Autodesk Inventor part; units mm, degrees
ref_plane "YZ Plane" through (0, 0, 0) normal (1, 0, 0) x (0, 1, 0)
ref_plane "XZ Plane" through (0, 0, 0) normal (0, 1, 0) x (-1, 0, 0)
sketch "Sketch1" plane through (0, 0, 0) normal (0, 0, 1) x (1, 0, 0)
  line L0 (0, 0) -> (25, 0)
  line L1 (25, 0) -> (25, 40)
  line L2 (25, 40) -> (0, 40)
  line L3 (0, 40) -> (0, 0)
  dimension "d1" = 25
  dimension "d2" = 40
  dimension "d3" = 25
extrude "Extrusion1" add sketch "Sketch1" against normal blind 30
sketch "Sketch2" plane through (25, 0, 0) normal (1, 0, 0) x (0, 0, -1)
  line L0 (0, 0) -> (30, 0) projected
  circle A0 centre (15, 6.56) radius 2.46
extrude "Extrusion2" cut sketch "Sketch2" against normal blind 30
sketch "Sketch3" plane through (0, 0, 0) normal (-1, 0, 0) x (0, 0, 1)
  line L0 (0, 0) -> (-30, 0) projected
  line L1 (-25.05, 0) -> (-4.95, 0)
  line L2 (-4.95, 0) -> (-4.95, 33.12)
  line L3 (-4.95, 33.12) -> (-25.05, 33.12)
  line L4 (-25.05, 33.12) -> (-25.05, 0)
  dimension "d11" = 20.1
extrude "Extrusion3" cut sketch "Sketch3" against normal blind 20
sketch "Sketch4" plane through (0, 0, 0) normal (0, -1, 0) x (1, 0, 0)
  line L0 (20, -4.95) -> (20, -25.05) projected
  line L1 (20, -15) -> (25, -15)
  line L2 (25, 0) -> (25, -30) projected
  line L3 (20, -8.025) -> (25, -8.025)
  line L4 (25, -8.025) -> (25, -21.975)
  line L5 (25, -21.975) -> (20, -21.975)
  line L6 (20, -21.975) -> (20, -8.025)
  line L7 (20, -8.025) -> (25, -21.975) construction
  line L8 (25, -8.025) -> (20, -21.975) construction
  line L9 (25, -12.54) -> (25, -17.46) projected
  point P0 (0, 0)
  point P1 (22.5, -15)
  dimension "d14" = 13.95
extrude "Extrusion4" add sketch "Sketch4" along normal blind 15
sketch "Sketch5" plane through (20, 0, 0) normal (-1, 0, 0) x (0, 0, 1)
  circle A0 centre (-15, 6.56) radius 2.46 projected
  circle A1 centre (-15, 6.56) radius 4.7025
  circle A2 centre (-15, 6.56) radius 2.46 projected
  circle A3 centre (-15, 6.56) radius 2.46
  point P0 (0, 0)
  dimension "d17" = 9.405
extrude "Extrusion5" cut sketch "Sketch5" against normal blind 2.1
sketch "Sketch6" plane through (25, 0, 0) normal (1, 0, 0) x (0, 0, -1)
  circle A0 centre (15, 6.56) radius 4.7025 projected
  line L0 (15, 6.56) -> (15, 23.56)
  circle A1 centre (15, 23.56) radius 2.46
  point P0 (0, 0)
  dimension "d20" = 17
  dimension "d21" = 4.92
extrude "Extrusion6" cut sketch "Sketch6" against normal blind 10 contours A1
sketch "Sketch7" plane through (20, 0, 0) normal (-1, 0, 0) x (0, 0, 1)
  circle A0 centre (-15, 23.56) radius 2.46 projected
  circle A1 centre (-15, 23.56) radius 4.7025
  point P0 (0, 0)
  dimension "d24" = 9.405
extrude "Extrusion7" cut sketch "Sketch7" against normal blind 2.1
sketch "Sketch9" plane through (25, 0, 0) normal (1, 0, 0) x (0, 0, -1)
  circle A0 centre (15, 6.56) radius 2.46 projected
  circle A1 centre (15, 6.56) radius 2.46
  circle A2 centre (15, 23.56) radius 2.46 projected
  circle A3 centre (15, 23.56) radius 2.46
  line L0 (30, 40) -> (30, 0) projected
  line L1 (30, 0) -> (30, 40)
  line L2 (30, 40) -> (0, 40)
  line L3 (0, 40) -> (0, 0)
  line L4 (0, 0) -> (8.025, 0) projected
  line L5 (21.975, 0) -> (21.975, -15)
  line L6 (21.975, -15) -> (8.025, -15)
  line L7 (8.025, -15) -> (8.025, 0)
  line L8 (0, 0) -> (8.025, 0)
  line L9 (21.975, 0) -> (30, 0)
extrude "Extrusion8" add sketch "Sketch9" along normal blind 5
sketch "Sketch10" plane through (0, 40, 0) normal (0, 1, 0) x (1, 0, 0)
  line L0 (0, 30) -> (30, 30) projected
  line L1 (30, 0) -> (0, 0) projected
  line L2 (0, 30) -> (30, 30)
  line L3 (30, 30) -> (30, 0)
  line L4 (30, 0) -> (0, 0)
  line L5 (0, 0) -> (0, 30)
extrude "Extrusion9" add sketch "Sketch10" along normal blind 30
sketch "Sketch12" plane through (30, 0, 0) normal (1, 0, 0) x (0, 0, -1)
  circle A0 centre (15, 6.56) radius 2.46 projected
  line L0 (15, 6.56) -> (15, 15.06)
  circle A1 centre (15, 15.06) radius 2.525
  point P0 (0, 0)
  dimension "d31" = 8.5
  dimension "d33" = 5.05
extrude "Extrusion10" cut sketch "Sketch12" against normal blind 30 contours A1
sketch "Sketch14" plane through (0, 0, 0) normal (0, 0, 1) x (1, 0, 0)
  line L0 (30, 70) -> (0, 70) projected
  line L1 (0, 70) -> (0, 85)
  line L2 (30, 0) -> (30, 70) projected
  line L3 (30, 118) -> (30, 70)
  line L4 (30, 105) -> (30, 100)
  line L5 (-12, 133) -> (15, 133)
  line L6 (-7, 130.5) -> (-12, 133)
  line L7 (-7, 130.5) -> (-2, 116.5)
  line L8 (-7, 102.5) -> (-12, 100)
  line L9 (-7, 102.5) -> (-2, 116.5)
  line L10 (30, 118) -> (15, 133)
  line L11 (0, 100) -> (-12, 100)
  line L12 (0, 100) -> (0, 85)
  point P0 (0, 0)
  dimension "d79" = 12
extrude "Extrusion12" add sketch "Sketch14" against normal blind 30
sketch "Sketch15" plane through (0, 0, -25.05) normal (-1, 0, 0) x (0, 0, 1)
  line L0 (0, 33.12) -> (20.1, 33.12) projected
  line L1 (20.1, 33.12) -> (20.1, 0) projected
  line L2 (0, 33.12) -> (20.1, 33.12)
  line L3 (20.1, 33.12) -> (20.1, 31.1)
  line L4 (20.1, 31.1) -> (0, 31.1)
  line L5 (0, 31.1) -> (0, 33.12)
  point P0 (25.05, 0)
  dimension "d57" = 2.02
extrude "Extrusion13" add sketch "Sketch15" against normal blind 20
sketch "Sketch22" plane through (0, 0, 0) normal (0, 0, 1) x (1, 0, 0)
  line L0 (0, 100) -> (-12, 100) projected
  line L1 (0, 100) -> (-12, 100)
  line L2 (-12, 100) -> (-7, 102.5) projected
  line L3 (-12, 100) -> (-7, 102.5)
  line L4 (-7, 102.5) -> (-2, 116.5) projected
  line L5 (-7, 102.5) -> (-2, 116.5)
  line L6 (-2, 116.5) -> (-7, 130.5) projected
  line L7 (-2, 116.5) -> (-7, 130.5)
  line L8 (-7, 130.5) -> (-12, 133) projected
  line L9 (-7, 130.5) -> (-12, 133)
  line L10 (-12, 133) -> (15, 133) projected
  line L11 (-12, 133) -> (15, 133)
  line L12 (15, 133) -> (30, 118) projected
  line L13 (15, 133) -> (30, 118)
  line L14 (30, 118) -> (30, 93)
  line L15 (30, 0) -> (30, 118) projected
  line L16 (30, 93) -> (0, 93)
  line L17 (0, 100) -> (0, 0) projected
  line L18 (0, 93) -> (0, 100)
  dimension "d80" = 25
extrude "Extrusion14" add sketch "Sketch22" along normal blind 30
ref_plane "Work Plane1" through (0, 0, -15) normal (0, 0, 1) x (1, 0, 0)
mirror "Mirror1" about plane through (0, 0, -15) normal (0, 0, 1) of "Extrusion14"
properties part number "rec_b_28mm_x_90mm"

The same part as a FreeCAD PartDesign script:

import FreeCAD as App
import Part
import Sketcher
from FreeCAD import Vector
Q = App.Units.Quantity


def add_polygon(sketch, points):
    """Adds a closed chain of lines whose ends are joined by coincident constraints."""
    first, n = sketch.GeometryCount, len(points)
    for a, b in zip(points, points[1:] + points[:1]):
        sketch.addGeometry(Part.LineSegment(App.Vector(*a, 0), App.Vector(*b, 0)), False)
    for i in range(n):
        sketch.addConstraint(Sketcher.Constraint("Coincident", first + i, 2, first + (i + 1) % n, 1))

doc = App.newDocument("Part")
params = doc.addObject("Spreadsheet::Sheet", "Params")
for row, (alias, value) in enumerate([
    ("sketch1_width", "25 mm"),
    ("sketch1_height", "40 mm"),
    ("pad1_length", "30 mm"),
    ("sketch2_diameter", "4.92 mm"),
    ("pocket1_length", "30 mm"),
    ("sketch3_height", "20.1 mm"),
    ("sketch3_width", "33.12 mm"),
    ("pocket2_length", "20 mm"),
    ("sketch4_height", "13.95 mm"),
    ("sketch4_width", "5 mm"),
    ("pad2_length", "15 mm"),
    ("sketch5_diameter", "4.92 mm"),
    ("pocket3_length", "2.1 mm"),
    ("sketch6_diameter", "4.92 mm"),
    ("pocket4_length", "10 mm"),
    ("sketch7_diameter", "4.92 mm"),
    ("pocket5_length", "2.1 mm"),
    ("sketch8_diameter", "4.92 mm"),
    ("sketch8_width", "40 mm"),
    ("sketch8_width2", "15 mm"),
    ("sketch8_height", "30 mm"),
    ("sketch8_height2", "13.95 mm"),
    ("pad3_length", "5 mm"),
    ("sketch9_width", "30 mm"),
    ("pad4_length", "30 mm"),
    ("sketch10_diameter", "5.05 mm"),
    ("pocket6_length", "30 mm"),
    ("sketch11_width", "12 mm"),
    ("sketch11_width2", "30 mm"),
    ("sketch11_width3", "27 mm"),
    ("sketch11_height", "48 mm"),
    ("pad5_length", "30 mm"),
    ("sketch12_width", "2.02 mm"),
    ("sketch12_height", "20.1 mm"),
    ("pad6_length", "20 mm"),
    ("sketch13_height", "25 mm"),
    ("sketch13_width", "12 mm"),
    ("sketch13_width2", "30 mm"),
    ("sketch13_width3", "27 mm"),
    ("sketch13_height2", "7 mm"),
    ("pad7_length", "30 mm"),
], start=1):
    params.set(f"A{row}", alias)
    params.set(f"B{row}", "=" + value)
    params.setAlias(f"B{row}", alias)

body = doc.addObject("PartDesign::Body", "Body")

# Sketch on XY plane
sketch1 = body.newObject("Sketcher::SketchObject", "Sketch")
sketch1.AttachmentSupport = (doc.getObject("XY_Plane"), [""])
sketch1.MapMode = "FlatFace"
add_polygon(sketch1, [(0, 40), (0, 0), (25, 0), (25, 40)])  # lines 0-3
sketch1.addConstraint(Sketcher.Constraint("Vertical", 0))
sketch1.addConstraint(Sketcher.Constraint("Horizontal", 1))
sketch1.addConstraint(Sketcher.Constraint("Vertical", 2))
sketch1.addConstraint(Sketcher.Constraint("Horizontal", 3))
sketch1.addConstraint(Sketcher.Constraint("Coincident", 0, 2, -1, 1))
sketch1.addConstraint(Sketcher.Constraint("DistanceX", 1, 1, 1, 2, 25.0))
sketch1.addConstraint(Sketcher.Constraint("DistanceY", 0, 2, 0, 1, 40.0))
sketch1.setExpression("Constraints[9]", "Params.sketch1_width")
sketch1.setExpression("Constraints[10]", "Params.sketch1_height")
pad1 = body.newObject("PartDesign::Pad", "Pad")
pad1.Profile = sketch1
pad1.setExpression("Length", "Params.pad1_length")
pad1.Reversed = True

# Sketch on YZ plane
sketch2 = body.newObject("Sketcher::SketchObject", "Sketch001")
sketch2.AttachmentSupport = (doc.getObject("YZ_Plane"), [""])
sketch2.MapMode = "FlatFace"
sketch2.AttachmentOffset = App.Placement(Vector(0, 0, 25), App.Rotation())
sketch2.addGeometry(Part.Circle(Vector(6.56, -15, 0), Vector(0, 0, 1), 2.46), False)
sketch2.addConstraint(Sketcher.Constraint("Diameter", 0, 4.92))
sketch2.addConstraint(Sketcher.Constraint("DistanceY", 0, 3, -1, 1, 15.0))
sketch2.addConstraint(Sketcher.Constraint("DistanceX", -1, 1, 0, 3, 6.56))
sketch2.setExpression("Constraints[0]", "Params.sketch2_diameter")
pocket1 = body.newObject("PartDesign::Pocket", "Pocket")
pocket1.Profile = sketch2
pocket1.setExpression("Length", "Params.pocket1_length")

# Sketch on YZ plane
sketch3 = body.newObject("Sketcher::SketchObject", "Sketch002")
sketch3.AttachmentSupport = (doc.getObject("YZ_Plane"), [""])
sketch3.MapMode = "FlatFace"
add_polygon(sketch3, [(0, -25.05), (0, -4.95), (33.12, -4.95), (33.12, -25.05)])  # lines 0-3
sketch3.addConstraint(Sketcher.Constraint("Vertical", 0))
sketch3.addConstraint(Sketcher.Constraint("Horizontal", 1))
sketch3.addConstraint(Sketcher.Constraint("Vertical", 2))
sketch3.addConstraint(Sketcher.Constraint("Horizontal", 3))
sketch3.addConstraint(Sketcher.Constraint("PointOnObject", 0, 2, -2))
sketch3.addConstraint(Sketcher.Constraint("DistanceY", 0, 1, 0, 2, 20.1))
sketch3.addConstraint(Sketcher.Constraint("DistanceX", 1, 1, 1, 2, 33.12))
sketch3.addConstraint(Sketcher.Constraint("DistanceY", 0, 2, -1, 1, 4.95))
sketch3.setExpression("Constraints[9]", "Params.sketch3_height")
sketch3.setExpression("Constraints[10]", "Params.sketch3_width")
pocket2 = body.newObject("PartDesign::Pocket", "Pocket001")
pocket2.Profile = sketch3
pocket2.setExpression("Length", "Params.pocket2_length")
pocket2.Reversed = True

# Sketch on XZ plane
sketch4 = body.newObject("Sketcher::SketchObject", "Sketch003")
sketch4.AttachmentSupport = (doc.getObject("XZ_Plane"), [""])
sketch4.MapMode = "FlatFace"
add_polygon(sketch4, [(25, -8.025), (20, -8.025), (20, -21.975), (25, -21.975)])  # lines 0-3
sketch4.addConstraint(Sketcher.Constraint("Horizontal", 0))
sketch4.addConstraint(Sketcher.Constraint("Vertical", 1))
sketch4.addConstraint(Sketcher.Constraint("Horizontal", 2))
sketch4.addConstraint(Sketcher.Constraint("Vertical", 3))
sketch4.addConstraint(Sketcher.Constraint("DistanceY", 1, 2, 1, 1, 13.95))
sketch4.addConstraint(Sketcher.Constraint("DistanceX", 0, 2, 0, 1, 5.0))
sketch4.addConstraint(Sketcher.Constraint("DistanceX", -1, 1, 0, 2, 20.0))
sketch4.addConstraint(Sketcher.Constraint("DistanceY", 0, 2, -1, 1, 8.025))
sketch4.setExpression("Constraints[8]", "Params.sketch4_height")
sketch4.setExpression("Constraints[9]", "Params.sketch4_width")
pad2 = body.newObject("PartDesign::Pad", "Pad001")
pad2.Profile = sketch4
pad2.setExpression("Length", "Params.pad2_length")

# Sketch on YZ plane
sketch5 = body.newObject("Sketcher::SketchObject", "Sketch004")
sketch5.AttachmentSupport = (doc.getObject("YZ_Plane"), [""])
sketch5.MapMode = "FlatFace"
sketch5.AttachmentOffset = App.Placement(Vector(0, 0, 20), App.Rotation())
sketch5.addGeometry(Part.Circle(Vector(6.56, -15, 0), Vector(0, 0, 1), 4.7025), False)
sketch5.addGeometry(Part.Circle(Vector(6.56, -15, 0), Vector(0, 0, 1), 2.46), False)
sketch5.addConstraint(Sketcher.Constraint("Coincident", 1, 3, 0, 3))
sketch5.addConstraint(Sketcher.Constraint("Diameter", 0, 9.405))
sketch5.addConstraint(Sketcher.Constraint("Diameter", 1, 4.92))
sketch5.addConstraint(Sketcher.Constraint("DistanceY", 0, 3, -1, 1, 15.0))
sketch5.addConstraint(Sketcher.Constraint("DistanceX", -1, 1, 0, 3, 6.56))
sketch5.setExpression("Constraints[2]", "Params.sketch5_diameter")
pocket3 = body.newObject("PartDesign::Pocket", "Pocket002")
pocket3.Profile = sketch5
pocket3.setExpression("Length", "Params.pocket3_length")
pocket3.Reversed = True

# Sketch on YZ plane
sketch6 = body.newObject("Sketcher::SketchObject", "Sketch005")
sketch6.AttachmentSupport = (doc.getObject("YZ_Plane"), [""])
sketch6.MapMode = "FlatFace"
sketch6.AttachmentOffset = App.Placement(Vector(0, 0, 25), App.Rotation())
sketch6.addGeometry(Part.Circle(Vector(23.56, -15, 0), Vector(0, 0, 1), 2.46), False)
sketch6.addConstraint(Sketcher.Constraint("Diameter", 0, 4.92))
sketch6.addConstraint(Sketcher.Constraint("DistanceY", 0, 3, -1, 1, 15.0))
sketch6.addConstraint(Sketcher.Constraint("DistanceX", -1, 1, 0, 3, 23.56))
sketch6.setExpression("Constraints[0]", "Params.sketch6_diameter")
pocket4 = body.newObject("PartDesign::Pocket", "Pocket003")
pocket4.Profile = sketch6
pocket4.setExpression("Length", "Params.pocket4_length")

# Sketch on YZ plane
sketch7 = body.newObject("Sketcher::SketchObject", "Sketch006")
sketch7.AttachmentSupport = (doc.getObject("YZ_Plane"), [""])
sketch7.MapMode = "FlatFace"
sketch7.AttachmentOffset = App.Placement(Vector(0, 0, 20), App.Rotation())
sketch7.addGeometry(Part.Circle(Vector(23.56, -15, 0), Vector(0, 0, 1), 4.7025), False)
sketch7.addGeometry(Part.Circle(Vector(23.56, -15, 0), Vector(0, 0, 1), 2.46), False)
sketch7.addConstraint(Sketcher.Constraint("Coincident", 1, 3, 0, 3))
sketch7.addConstraint(Sketcher.Constraint("Diameter", 0, 9.405))
sketch7.addConstraint(Sketcher.Constraint("Diameter", 1, 4.92))
sketch7.addConstraint(Sketcher.Constraint("DistanceY", 0, 3, -1, 1, 15.0))
sketch7.addConstraint(Sketcher.Constraint("DistanceX", -1, 1, 0, 3, 23.56))
sketch7.setExpression("Constraints[2]", "Params.sketch7_diameter")
pocket5 = body.newObject("PartDesign::Pocket", "Pocket004")
pocket5.Profile = sketch7
pocket5.setExpression("Length", "Params.pocket5_length")
pocket5.Reversed = True

# Sketch on YZ plane
sketch8 = body.newObject("Sketcher::SketchObject", "Sketch007")
sketch8.AttachmentSupport = (doc.getObject("YZ_Plane"), [""])
sketch8.MapMode = "FlatFace"
sketch8.AttachmentOffset = App.Placement(Vector(0, 0, 25), App.Rotation())
add_polygon(sketch8, [(0, -30), (40, -30), (40, 0), (0, 0), (0, -8.025), (-15, -8.025), (-15, -21.975), (0, -21.975)])  # lines 0-7
sketch8.addGeometry(Part.Circle(Vector(6.56, -15, 0), Vector(0, 0, 1), 2.46), False)  # 8
sketch8.addGeometry(Part.Circle(Vector(23.56, -15, 0), Vector(0, 0, 1), 2.46), False)  # 9
sketch8.addConstraint(Sketcher.Constraint("Horizontal", 0))
sketch8.addConstraint(Sketcher.Constraint("Vertical", 1))
sketch8.addConstraint(Sketcher.Constraint("Horizontal", 2))
sketch8.addConstraint(Sketcher.Constraint("Vertical", 3))
sketch8.addConstraint(Sketcher.Constraint("Horizontal", 4))
sketch8.addConstraint(Sketcher.Constraint("Vertical", 5))
sketch8.addConstraint(Sketcher.Constraint("Horizontal", 6))
sketch8.addConstraint(Sketcher.Constraint("Vertical", 7))
sketch8.addConstraint(Sketcher.Constraint("Coincident", 2, 2, -1, 1))
sketch8.addConstraint(Sketcher.Constraint("Equal", 8, 9))
sketch8.addConstraint(Sketcher.Constraint("PointOnObject", 6, 2, -2))
sketch8.addConstraint(Sketcher.Constraint("Horizontal", 8, 3, 9, 3))
sketch8.addConstraint(Sketcher.Constraint("Equal", 3, 7))
sketch8.addConstraint(Sketcher.Constraint("Diameter", 8, 4.92))
sketch8.addConstraint(Sketcher.Constraint("DistanceX", 0, 1, 0, 2, 40.0))
sketch8.addConstraint(Sketcher.Constraint("DistanceX", 4, 2, 4, 1, 15.0))
sketch8.addConstraint(Sketcher.Constraint("DistanceY", 1, 1, 1, 2, 30.0))
sketch8.addConstraint(Sketcher.Constraint("DistanceY", 8, 3, -1, 1, 15.0))
sketch8.addConstraint(Sketcher.Constraint("DistanceX", 8, 3, 9, 3, 17.0))
sketch8.addConstraint(Sketcher.Constraint("DistanceY", 5, 2, 5, 1, 13.95))
sketch8.addConstraint(Sketcher.Constraint("DistanceX", -1, 1, 8, 3, 6.56))
sketch8.setExpression("Constraints[21]", "Params.sketch8_diameter")
sketch8.setExpression("Constraints[22]", "Params.sketch8_width")
sketch8.setExpression("Constraints[23]", "Params.sketch8_width2")
sketch8.setExpression("Constraints[24]", "Params.sketch8_height")
sketch8.setExpression("Constraints[27]", "Params.sketch8_height2")
pad3 = body.newObject("PartDesign::Pad", "Pad002")
pad3.Profile = sketch8
pad3.setExpression("Length", "Params.pad3_length")

# Sketch on XZ plane
sketch9 = body.newObject("Sketcher::SketchObject", "Sketch008")
sketch9.AttachmentSupport = (doc.getObject("XZ_Plane"), [""])
sketch9.MapMode = "FlatFace"
sketch9.AttachmentOffset = App.Placement(Vector(0, 0, -40), App.Rotation())
add_polygon(sketch9, [(30, -30), (0, -30), (0, 0), (30, 0)])  # lines 0-3
sketch9.addConstraint(Sketcher.Constraint("Horizontal", 0))
sketch9.addConstraint(Sketcher.Constraint("Vertical", 1))
sketch9.addConstraint(Sketcher.Constraint("Horizontal", 2))
sketch9.addConstraint(Sketcher.Constraint("Vertical", 3))
sketch9.addConstraint(Sketcher.Constraint("Coincident", 1, 2, -1, 1))
sketch9.addConstraint(Sketcher.Constraint("Equal", 2, 1))
sketch9.addConstraint(Sketcher.Constraint("DistanceX", 0, 2, 0, 1, 30.0))
sketch9.setExpression("Constraints[10]", "Params.sketch9_width")
pad4 = body.newObject("PartDesign::Pad", "Pad003")
pad4.Profile = sketch9
pad4.setExpression("Length", "Params.pad4_length")
pad4.Reversed = True

# Sketch on YZ plane
sketch10 = body.newObject("Sketcher::SketchObject", "Sketch009")
sketch10.AttachmentSupport = (doc.getObject("YZ_Plane"), [""])
sketch10.MapMode = "FlatFace"
sketch10.AttachmentOffset = App.Placement(Vector(0, 0, 30), App.Rotation())
sketch10.addGeometry(Part.Circle(Vector(15.06, -15, 0), Vector(0, 0, 1), 2.525), False)
sketch10.addConstraint(Sketcher.Constraint("Diameter", 0, 5.05))
sketch10.addConstraint(Sketcher.Constraint("DistanceY", 0, 3, -1, 1, 15.0))
sketch10.addConstraint(Sketcher.Constraint("DistanceX", -1, 1, 0, 3, 15.06))
sketch10.setExpression("Constraints[0]", "Params.sketch10_diameter")
pocket6 = body.newObject("PartDesign::Pocket", "Pocket005")
pocket6.Profile = sketch10
pocket6.setExpression("Length", "Params.pocket6_length")

# Sketch on XY plane
sketch11 = body.newObject("Sketcher::SketchObject", "Sketch010")
sketch11.AttachmentSupport = (doc.getObject("XY_Plane"), [""])
sketch11.MapMode = "FlatFace"
add_polygon(sketch11, [(0, 70), (30, 70), (30, 118), (15, 133), (-12, 133), (-7, 130.5), (-2, 116.5), (-7, 102.5), (-12, 100), (0, 100)])  # lines 0-9
sketch11.addConstraint(Sketcher.Constraint("Horizontal", 0))
sketch11.addConstraint(Sketcher.Constraint("Vertical", 1))
sketch11.addConstraint(Sketcher.Constraint("Horizontal", 3))
sketch11.addConstraint(Sketcher.Constraint("Horizontal", 8))
sketch11.addConstraint(Sketcher.Constraint("Vertical", 9))
sketch11.addConstraint(Sketcher.Constraint("PointOnObject", 8, 2, -2))
sketch11.addConstraint(Sketcher.Constraint("Vertical", 4, 2, 6, 2))
sketch11.addConstraint(Sketcher.Constraint("Vertical", 3, 2, 7, 2))
sketch11.addConstraint(Sketcher.Constraint("Equal", 0, 9))
sketch11.addConstraint(Sketcher.Constraint("Equal", 5, 6))
sketch11.addConstraint(Sketcher.Constraint("Equal", 4, 7))
sketch11.addConstraint(Sketcher.Constraint("DistanceX", 8, 1, 8, 2, 12.0))
sketch11.addConstraint(Sketcher.Constraint("DistanceX", 0, 1, 0, 2, 30.0))
sketch11.addConstraint(Sketcher.Constraint("DistanceX", 3, 2, 3, 1, 27.0))
sketch11.addConstraint(Sketcher.Constraint("DistanceY", 1, 1, 1, 2, 48.0))
sketch11.addConstraint(Sketcher.Constraint("Angle", 2, Q("135 deg")))
sketch11.addConstraint(Sketcher.Constraint("DistanceY", -1, 1, 0, 2, 70.0))
sketch11.addConstraint(Sketcher.Constraint("DistanceX", 4, 2, -1, 1, 7.0))
sketch11.addConstraint(Sketcher.Constraint("DistanceX", 5, 2, -1, 1, 2.0))
sketch11.addConstraint(Sketcher.Constraint("DistanceY", 5, 2, 4, 2, 14.0))
sketch11.setExpression("Constraints[21]", "Params.sketch11_width")
sketch11.setExpression("Constraints[22]", "Params.sketch11_width2")
sketch11.setExpression("Constraints[23]", "Params.sketch11_width3")
sketch11.setExpression("Constraints[24]", "Params.sketch11_height")
pad5 = body.newObject("PartDesign::Pad", "Pad004")
pad5.Profile = sketch11
pad5.setExpression("Length", "Params.pad5_length")
pad5.Reversed = True

# Sketch on YZ plane
sketch12 = body.newObject("Sketcher::SketchObject", "Sketch011")
sketch12.AttachmentSupport = (doc.getObject("YZ_Plane"), [""])
sketch12.MapMode = "FlatFace"
add_polygon(sketch12, [(33.12, -4.95), (33.12, -25.05), (31.1, -25.05), (31.1, -4.95)])  # lines 0-3
sketch12.addConstraint(Sketcher.Constraint("Vertical", 0))
sketch12.addConstraint(Sketcher.Constraint("Horizontal", 1))
sketch12.addConstraint(Sketcher.Constraint("Vertical", 2))
sketch12.addConstraint(Sketcher.Constraint("Horizontal", 3))
sketch12.addConstraint(Sketcher.Constraint("DistanceX", 1, 2, 1, 1, 2.02))
sketch12.addConstraint(Sketcher.Constraint("DistanceY", 0, 2, 0, 1, 20.1))
sketch12.addConstraint(Sketcher.Constraint("DistanceX", -1, 1, 1, 2, 31.1))
sketch12.addConstraint(Sketcher.Constraint("DistanceY", 0, 2, -1, 1, 25.05))
sketch12.setExpression("Constraints[8]", "Params.sketch12_width")
sketch12.setExpression("Constraints[9]", "Params.sketch12_height")
pad6 = body.newObject("PartDesign::Pad", "Pad005")
pad6.Profile = sketch12
pad6.setExpression("Length", "Params.pad6_length")

# Sketch on XY plane
sketch13 = body.newObject("Sketcher::SketchObject", "Sketch012")
sketch13.AttachmentSupport = (doc.getObject("XY_Plane"), [""])
sketch13.MapMode = "FlatFace"
add_polygon(sketch13, [(-12, 100), (0, 100), (0, 93), (30, 93), (30, 118), (15, 133), (-12, 133), (-7, 130.5), (-2, 116.5), (-7, 102.5)])  # lines 0-9
sketch13.addConstraint(Sketcher.Constraint("Horizontal", 0))
sketch13.addConstraint(Sketcher.Constraint("Vertical", 1))
sketch13.addConstraint(Sketcher.Constraint("Horizontal", 2))
sketch13.addConstraint(Sketcher.Constraint("Vertical", 3))
sketch13.addConstraint(Sketcher.Constraint("Horizontal", 5))
sketch13.addConstraint(Sketcher.Constraint("PointOnObject", 0, 2, -2))
sketch13.addConstraint(Sketcher.Constraint("Vertical", 6, 2, 8, 2))
sketch13.addConstraint(Sketcher.Constraint("Vertical", 5, 2, 9, 2))
sketch13.addConstraint(Sketcher.Constraint("Equal", 7, 8))
sketch13.addConstraint(Sketcher.Constraint("Equal", 6, 9))
sketch13.addConstraint(Sketcher.Constraint("DistanceY", 3, 1, 3, 2, 25.0))
sketch13.addConstraint(Sketcher.Constraint("DistanceX", 0, 1, 0, 2, 12.0))
sketch13.addConstraint(Sketcher.Constraint("DistanceX", 2, 1, 2, 2, 30.0))
sketch13.addConstraint(Sketcher.Constraint("DistanceX", 5, 2, 5, 1, 27.0))
sketch13.addConstraint(Sketcher.Constraint("DistanceY", 1, 2, 1, 1, 7.0))
sketch13.addConstraint(Sketcher.Constraint("Angle", 4, Q("135 deg")))
sketch13.addConstraint(Sketcher.Constraint("DistanceY", -1, 1, 0, 2, 100.0))
sketch13.addConstraint(Sketcher.Constraint("DistanceX", 6, 2, -1, 1, 7.0))
sketch13.addConstraint(Sketcher.Constraint("DistanceX", 7, 2, -1, 1, 2.0))
sketch13.addConstraint(Sketcher.Constraint("DistanceY", 7, 2, 6, 2, 14.0))
sketch13.setExpression("Constraints[20]", "Params.sketch13_height")
sketch13.setExpression("Constraints[21]", "Params.sketch13_width")
sketch13.setExpression("Constraints[22]", "Params.sketch13_width2")
sketch13.setExpression("Constraints[23]", "Params.sketch13_width3")
sketch13.setExpression("Constraints[24]", "Params.sketch13_height2")
pad7 = body.newObject("PartDesign::Pad", "Pad006")
pad7.Profile = sketch13
pad7.setExpression("Length", "Params.pad7_length")
doc.recompute()

datumplane = body.newObject("PartDesign::Plane", "DatumPlane")
datumplane.AttachmentSupport = (doc.getObject("XY_Plane"), [""])
datumplane.MapMode = "FlatFace"
datumplane.AttachmentOffset = App.Placement(Vector(0, 0, -15), App.Rotation())
mirrored = body.newObject("PartDesign::Mirrored", "Mirrored")
mirrored.Originals = [pad7]
mirrored.MirrorPlane = (datumplane, [""])
body.Tip = mirrored

doc.recompute()
